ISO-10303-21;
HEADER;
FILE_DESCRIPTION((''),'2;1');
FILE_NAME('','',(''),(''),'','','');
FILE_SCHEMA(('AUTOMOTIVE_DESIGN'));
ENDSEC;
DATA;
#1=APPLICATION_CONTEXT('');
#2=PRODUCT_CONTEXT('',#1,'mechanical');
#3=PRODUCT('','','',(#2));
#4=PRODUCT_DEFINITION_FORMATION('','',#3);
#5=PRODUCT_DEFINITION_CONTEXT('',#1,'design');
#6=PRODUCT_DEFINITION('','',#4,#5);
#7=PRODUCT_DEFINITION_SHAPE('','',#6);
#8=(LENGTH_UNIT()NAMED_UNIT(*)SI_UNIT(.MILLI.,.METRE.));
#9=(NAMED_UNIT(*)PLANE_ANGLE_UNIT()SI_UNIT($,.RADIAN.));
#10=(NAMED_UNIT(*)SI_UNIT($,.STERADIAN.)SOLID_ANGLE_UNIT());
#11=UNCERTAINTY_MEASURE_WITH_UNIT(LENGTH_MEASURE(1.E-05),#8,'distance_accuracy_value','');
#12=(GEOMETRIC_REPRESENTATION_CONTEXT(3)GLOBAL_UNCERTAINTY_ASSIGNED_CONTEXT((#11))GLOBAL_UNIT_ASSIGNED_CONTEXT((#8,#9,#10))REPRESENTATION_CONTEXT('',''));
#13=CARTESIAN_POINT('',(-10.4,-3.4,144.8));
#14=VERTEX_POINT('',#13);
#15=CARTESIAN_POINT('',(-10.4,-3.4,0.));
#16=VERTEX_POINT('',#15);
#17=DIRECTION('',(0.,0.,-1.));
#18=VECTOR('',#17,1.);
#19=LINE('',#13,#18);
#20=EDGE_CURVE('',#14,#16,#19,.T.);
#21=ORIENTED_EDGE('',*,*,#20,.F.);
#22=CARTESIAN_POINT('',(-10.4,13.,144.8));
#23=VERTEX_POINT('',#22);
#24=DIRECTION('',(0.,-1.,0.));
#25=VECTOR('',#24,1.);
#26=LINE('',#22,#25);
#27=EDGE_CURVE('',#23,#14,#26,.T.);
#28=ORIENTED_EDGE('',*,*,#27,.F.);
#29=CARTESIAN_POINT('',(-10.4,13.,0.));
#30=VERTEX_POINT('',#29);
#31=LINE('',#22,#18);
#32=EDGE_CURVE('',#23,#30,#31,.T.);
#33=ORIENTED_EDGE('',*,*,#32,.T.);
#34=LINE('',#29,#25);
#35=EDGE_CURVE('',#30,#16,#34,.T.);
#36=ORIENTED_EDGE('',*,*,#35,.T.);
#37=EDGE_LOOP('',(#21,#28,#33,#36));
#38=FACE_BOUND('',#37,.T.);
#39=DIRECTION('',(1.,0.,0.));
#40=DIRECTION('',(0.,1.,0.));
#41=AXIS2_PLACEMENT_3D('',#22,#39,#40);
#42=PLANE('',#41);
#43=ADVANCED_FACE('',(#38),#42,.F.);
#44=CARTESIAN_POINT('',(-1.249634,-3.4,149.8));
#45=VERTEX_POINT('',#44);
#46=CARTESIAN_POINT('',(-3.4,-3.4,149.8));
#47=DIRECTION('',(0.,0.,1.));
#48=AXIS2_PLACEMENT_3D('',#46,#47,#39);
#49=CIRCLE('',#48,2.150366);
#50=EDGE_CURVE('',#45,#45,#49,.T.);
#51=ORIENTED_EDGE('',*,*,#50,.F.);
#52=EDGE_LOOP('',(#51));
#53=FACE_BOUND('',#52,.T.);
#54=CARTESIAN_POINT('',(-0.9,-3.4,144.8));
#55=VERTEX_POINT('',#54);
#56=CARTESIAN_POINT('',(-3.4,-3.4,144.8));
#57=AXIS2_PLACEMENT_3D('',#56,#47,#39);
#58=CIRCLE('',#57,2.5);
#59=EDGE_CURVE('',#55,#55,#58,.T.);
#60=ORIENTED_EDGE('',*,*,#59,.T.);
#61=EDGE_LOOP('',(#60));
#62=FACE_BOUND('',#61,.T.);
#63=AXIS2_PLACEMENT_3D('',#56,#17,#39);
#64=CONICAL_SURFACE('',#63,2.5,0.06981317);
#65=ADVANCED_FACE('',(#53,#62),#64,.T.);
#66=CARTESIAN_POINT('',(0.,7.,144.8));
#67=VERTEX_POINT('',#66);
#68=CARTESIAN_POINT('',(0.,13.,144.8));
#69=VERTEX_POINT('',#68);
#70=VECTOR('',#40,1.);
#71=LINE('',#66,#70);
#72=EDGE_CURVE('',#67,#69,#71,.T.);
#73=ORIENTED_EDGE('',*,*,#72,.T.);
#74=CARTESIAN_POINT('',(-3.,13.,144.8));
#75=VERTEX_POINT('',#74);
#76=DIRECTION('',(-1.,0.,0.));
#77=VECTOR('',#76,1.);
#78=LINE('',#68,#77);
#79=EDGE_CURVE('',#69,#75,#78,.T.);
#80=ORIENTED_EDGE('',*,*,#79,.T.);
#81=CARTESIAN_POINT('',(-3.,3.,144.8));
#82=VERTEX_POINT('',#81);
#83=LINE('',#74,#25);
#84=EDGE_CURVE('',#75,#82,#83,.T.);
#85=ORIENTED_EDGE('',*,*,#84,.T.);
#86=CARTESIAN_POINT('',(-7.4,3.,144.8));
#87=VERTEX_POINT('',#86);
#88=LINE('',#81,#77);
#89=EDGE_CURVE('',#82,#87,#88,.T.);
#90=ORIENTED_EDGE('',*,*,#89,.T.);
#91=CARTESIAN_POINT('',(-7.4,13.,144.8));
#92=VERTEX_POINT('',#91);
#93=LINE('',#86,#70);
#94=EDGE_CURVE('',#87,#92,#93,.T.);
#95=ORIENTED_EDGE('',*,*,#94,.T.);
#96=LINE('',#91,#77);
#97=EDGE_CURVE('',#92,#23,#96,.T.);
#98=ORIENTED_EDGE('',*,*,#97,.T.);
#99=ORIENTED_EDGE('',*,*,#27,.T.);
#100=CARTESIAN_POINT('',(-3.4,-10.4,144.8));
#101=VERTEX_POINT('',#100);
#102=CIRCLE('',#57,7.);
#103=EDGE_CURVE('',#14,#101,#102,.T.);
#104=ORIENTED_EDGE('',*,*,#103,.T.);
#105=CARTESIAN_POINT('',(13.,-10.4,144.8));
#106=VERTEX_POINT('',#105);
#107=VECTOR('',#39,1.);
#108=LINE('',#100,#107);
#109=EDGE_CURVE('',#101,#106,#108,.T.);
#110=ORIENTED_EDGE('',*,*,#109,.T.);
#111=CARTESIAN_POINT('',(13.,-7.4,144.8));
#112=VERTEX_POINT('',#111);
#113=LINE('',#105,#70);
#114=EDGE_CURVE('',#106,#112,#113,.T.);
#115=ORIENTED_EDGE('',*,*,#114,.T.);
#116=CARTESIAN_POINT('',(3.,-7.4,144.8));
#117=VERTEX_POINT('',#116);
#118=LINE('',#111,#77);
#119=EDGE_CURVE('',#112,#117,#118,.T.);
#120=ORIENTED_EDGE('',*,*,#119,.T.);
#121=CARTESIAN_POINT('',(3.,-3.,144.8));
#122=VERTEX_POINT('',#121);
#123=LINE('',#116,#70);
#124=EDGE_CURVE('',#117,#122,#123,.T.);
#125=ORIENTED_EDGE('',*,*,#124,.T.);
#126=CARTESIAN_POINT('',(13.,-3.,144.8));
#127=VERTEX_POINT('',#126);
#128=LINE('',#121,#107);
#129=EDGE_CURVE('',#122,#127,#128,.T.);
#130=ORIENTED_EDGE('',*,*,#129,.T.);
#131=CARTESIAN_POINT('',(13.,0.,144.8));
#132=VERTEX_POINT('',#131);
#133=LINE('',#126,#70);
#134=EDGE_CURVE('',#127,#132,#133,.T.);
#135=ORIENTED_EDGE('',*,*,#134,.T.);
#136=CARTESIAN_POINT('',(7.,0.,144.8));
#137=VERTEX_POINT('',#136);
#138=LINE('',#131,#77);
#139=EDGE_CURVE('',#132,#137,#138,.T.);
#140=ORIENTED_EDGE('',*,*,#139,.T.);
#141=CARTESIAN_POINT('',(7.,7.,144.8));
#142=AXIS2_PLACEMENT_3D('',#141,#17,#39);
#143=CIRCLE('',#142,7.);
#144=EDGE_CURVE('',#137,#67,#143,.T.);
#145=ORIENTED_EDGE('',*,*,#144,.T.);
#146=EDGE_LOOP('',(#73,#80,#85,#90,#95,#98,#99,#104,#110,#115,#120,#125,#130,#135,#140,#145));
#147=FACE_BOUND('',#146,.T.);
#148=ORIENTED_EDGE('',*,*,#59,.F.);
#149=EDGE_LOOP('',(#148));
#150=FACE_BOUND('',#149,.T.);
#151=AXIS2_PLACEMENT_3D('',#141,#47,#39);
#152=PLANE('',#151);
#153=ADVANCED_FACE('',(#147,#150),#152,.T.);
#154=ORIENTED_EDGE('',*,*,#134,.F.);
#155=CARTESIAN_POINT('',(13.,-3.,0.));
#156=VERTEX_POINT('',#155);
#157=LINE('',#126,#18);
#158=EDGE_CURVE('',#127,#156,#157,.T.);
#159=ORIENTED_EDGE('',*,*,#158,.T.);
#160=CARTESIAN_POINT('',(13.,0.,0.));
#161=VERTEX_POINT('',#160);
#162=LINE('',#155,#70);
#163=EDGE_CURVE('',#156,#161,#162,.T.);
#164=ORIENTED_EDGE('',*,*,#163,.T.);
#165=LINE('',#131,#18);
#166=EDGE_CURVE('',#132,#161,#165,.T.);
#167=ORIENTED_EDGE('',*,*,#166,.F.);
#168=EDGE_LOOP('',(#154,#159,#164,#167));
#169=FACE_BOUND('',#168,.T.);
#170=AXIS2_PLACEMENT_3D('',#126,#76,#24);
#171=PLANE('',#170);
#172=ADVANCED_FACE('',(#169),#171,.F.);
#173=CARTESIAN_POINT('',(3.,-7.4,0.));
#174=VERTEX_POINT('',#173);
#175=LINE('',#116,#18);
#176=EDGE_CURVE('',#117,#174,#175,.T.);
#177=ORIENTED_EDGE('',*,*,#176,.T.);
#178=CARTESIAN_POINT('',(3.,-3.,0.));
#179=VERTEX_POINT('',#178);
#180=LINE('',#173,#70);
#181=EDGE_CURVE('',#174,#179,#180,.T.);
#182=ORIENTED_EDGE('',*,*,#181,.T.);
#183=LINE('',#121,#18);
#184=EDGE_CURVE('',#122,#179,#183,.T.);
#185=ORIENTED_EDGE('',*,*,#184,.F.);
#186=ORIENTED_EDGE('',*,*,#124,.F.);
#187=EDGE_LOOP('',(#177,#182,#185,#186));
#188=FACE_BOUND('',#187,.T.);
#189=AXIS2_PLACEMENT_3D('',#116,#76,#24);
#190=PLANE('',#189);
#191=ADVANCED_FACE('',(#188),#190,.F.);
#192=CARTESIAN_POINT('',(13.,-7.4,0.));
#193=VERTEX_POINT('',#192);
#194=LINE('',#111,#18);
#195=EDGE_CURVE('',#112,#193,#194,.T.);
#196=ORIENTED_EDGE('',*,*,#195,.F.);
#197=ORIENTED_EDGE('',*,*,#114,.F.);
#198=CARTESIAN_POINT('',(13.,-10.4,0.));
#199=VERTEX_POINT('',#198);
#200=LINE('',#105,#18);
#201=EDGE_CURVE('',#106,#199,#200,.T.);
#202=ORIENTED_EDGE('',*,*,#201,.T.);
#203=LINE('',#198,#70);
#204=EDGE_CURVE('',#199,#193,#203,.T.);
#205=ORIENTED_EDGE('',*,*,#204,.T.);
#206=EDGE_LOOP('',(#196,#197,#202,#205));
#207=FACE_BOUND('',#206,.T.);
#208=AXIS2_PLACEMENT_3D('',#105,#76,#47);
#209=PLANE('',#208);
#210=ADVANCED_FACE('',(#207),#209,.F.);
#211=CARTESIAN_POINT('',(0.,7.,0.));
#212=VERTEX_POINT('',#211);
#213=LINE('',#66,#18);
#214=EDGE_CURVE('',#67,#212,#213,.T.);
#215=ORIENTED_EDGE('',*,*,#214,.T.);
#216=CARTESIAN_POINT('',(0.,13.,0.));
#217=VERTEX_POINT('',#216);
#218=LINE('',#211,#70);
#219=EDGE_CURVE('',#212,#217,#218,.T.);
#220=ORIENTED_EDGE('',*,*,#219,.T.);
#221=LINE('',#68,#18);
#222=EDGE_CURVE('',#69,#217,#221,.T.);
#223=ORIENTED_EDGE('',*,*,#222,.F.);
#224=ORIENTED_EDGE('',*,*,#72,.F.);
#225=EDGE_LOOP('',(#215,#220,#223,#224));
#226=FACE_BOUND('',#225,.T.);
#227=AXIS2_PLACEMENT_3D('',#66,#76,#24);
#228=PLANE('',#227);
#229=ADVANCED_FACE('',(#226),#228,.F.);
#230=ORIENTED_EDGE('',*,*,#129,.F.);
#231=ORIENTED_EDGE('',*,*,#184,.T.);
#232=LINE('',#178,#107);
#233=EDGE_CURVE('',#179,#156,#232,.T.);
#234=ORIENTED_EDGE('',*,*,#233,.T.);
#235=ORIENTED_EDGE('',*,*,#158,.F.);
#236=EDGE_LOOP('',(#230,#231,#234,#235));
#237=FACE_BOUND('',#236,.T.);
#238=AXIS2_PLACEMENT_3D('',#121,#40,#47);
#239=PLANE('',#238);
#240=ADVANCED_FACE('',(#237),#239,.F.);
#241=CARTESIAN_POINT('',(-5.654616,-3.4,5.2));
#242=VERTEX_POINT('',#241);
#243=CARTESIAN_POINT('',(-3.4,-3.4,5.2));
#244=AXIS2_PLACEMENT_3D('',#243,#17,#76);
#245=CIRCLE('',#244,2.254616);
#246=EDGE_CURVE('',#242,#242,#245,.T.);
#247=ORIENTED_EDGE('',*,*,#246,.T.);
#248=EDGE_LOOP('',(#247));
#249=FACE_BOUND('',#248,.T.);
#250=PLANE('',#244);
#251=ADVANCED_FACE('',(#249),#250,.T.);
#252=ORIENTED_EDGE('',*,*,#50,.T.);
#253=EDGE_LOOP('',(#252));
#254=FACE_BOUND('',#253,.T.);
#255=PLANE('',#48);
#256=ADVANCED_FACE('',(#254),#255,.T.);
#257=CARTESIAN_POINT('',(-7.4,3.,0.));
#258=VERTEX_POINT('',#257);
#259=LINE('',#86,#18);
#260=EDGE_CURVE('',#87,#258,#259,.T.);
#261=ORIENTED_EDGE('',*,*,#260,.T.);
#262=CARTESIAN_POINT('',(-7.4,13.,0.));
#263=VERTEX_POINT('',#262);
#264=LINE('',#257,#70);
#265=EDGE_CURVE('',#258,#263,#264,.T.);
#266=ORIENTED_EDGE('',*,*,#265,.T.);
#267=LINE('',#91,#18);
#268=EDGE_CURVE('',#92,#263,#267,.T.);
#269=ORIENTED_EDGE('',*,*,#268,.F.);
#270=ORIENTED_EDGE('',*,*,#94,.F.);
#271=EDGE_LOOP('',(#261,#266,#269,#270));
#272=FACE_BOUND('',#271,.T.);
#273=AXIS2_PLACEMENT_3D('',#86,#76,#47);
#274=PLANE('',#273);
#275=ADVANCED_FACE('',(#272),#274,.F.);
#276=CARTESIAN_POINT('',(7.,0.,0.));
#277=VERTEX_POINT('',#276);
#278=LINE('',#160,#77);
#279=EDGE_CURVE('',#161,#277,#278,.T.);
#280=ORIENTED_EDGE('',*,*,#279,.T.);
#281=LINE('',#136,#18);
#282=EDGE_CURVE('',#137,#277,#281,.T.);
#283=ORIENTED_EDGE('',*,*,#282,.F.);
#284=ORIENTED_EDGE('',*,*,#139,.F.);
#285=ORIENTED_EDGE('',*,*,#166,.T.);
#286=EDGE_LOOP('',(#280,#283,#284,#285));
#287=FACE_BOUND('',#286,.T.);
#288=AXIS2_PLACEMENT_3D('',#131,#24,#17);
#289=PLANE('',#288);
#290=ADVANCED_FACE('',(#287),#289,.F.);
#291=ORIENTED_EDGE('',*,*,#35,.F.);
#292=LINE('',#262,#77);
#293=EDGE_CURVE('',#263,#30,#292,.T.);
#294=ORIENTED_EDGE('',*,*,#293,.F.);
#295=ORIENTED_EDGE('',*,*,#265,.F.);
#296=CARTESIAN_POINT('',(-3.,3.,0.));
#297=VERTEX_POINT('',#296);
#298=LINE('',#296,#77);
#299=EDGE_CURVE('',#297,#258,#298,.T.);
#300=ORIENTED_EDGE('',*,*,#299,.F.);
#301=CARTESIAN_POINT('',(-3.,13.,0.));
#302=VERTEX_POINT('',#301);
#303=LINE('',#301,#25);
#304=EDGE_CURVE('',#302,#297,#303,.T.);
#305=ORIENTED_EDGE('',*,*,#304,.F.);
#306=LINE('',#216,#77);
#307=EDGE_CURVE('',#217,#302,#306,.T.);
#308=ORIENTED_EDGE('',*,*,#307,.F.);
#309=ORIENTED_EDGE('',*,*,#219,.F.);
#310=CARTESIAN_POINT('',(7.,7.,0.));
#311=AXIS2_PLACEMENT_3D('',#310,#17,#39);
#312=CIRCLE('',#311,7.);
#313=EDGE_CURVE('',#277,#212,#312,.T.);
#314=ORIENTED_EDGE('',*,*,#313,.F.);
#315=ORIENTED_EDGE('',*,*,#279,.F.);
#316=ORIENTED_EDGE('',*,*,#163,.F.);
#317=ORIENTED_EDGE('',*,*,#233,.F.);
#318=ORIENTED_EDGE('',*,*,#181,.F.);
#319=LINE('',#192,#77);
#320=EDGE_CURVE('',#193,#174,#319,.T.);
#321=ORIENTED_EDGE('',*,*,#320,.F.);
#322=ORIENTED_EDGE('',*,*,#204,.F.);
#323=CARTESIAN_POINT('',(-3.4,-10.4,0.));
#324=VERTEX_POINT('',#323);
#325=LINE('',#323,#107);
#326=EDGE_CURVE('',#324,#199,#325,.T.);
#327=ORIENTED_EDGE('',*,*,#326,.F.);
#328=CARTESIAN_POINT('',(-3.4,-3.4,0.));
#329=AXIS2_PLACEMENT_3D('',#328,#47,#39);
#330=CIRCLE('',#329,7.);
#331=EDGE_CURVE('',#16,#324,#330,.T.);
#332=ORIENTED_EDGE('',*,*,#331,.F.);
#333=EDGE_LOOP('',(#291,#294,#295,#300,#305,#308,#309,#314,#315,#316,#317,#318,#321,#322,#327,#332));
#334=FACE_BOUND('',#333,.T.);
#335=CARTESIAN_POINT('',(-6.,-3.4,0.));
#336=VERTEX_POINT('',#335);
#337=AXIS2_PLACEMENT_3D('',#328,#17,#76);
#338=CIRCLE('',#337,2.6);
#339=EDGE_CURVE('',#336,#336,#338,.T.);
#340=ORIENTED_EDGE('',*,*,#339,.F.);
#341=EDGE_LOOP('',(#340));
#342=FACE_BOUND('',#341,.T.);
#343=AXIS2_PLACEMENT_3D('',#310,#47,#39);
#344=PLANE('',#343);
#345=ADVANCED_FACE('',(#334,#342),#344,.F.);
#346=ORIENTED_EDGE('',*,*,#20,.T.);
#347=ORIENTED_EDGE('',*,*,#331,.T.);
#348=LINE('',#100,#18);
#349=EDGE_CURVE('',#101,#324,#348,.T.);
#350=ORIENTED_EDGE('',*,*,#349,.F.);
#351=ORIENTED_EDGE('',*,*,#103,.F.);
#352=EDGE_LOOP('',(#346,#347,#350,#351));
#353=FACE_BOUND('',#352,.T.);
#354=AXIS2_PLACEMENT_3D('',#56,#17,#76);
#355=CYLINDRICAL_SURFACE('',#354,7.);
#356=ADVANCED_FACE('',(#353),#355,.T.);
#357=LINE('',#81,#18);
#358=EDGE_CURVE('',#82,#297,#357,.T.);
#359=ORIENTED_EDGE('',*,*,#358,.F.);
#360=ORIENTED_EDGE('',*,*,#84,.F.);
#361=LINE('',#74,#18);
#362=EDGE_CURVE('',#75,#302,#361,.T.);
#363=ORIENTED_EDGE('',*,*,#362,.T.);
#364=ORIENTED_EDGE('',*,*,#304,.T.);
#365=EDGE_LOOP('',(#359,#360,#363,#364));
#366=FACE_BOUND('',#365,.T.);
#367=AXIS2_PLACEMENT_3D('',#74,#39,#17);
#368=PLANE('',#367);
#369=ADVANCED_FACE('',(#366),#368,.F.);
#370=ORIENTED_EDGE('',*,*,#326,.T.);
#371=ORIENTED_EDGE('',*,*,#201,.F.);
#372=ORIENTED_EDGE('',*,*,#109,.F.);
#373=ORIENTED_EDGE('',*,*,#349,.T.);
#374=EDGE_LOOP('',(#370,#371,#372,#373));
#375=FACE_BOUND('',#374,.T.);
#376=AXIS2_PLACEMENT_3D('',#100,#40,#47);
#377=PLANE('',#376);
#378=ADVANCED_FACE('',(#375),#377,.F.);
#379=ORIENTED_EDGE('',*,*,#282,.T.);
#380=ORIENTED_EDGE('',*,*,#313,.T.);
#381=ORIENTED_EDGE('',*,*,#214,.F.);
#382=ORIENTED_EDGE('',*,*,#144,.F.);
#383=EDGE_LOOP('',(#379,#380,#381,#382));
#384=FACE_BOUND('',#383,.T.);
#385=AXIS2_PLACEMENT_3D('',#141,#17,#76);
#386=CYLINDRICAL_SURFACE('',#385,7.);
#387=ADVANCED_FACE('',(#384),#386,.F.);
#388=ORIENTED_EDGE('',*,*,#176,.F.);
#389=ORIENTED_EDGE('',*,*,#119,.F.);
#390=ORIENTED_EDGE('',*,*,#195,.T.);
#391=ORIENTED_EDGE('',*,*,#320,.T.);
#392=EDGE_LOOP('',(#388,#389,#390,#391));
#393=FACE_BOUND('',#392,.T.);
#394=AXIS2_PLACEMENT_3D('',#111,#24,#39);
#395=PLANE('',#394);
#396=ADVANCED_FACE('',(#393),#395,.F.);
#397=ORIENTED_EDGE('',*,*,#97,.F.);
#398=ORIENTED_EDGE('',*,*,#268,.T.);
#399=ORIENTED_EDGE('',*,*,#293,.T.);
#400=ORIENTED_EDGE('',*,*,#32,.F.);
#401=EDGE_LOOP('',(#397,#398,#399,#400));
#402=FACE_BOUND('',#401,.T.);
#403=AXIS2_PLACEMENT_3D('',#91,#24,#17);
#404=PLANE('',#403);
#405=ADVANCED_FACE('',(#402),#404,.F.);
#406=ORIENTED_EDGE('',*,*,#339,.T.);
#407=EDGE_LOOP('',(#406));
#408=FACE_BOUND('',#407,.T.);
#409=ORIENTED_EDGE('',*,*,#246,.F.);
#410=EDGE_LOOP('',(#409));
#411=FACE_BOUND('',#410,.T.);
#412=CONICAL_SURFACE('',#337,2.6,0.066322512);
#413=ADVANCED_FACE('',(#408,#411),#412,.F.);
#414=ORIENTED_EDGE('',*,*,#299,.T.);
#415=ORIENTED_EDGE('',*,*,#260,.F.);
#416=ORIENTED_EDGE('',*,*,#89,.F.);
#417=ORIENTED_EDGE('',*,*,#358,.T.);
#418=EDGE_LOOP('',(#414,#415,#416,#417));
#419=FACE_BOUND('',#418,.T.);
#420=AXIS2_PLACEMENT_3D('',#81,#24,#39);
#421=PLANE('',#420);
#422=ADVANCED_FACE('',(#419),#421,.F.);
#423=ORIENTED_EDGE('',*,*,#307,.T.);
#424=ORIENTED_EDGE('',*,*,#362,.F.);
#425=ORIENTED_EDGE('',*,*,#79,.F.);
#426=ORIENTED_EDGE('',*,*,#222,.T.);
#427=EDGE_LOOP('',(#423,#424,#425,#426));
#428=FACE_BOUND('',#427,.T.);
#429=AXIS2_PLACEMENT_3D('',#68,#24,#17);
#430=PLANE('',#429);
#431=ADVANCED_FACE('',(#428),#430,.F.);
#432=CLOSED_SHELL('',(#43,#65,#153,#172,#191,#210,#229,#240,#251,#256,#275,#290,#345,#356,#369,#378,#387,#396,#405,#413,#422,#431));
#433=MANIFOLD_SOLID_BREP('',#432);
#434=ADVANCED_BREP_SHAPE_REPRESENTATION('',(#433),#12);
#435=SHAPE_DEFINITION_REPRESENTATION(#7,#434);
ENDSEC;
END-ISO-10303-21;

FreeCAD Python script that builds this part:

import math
import FreeCAD as App
import Part
import Sketcher
Q = App.Units.Quantity


def faces_at(feature, points):
    """Names of the faces that lie closest to the given points."""
    faces = feature.Shape.Faces
    near = lambda p: min(range(len(faces)), key=lambda i: faces[i].distToShape(Part.Vertex(*p))[0])
    return sorted({f"Face{near(p) + 1}" for p in points})

doc = App.newDocument("Part")
body = doc.addObject("PartDesign::Body", "Body")

# Sketch on XY plane
sketch1 = doc.addObject("Sketcher::SketchObject", "Sketch")
body.addObject(sketch1)
sketch1.AttachmentSupport = (doc.XY_Plane, [""])
sketch1.MapMode = "FlatFace"
sketch1.addGeometry([
    Part.LineSegment(App.Vector(-3.4, -10.4, 0), App.Vector(13, -10.4, 0)),  # 0
    Part.LineSegment(App.Vector(13, -10.4, 0), App.Vector(13, -7.4, 0)),  # 1
    Part.LineSegment(App.Vector(13, -7.4, 0), App.Vector(3, -7.4, 0)),  # 2
    Part.LineSegment(App.Vector(3, -7.4, 0), App.Vector(3, -3, 0)),  # 3
    Part.LineSegment(App.Vector(3, -3, 0), App.Vector(13, -3, 0)),  # 4
    Part.LineSegment(App.Vector(13, -3, 0), App.Vector(13, 0, 0)),  # 5
    Part.LineSegment(App.Vector(13, 0, 0), App.Vector(7, 0, 0)),  # 6
    Part.ArcOfCircle(Part.Circle(App.Vector(7, 7, 0), App.Vector(0, 0, 1), 7), math.radians(-180), math.radians(-90)),  # 7
    Part.LineSegment(App.Vector(0, 7, 0), App.Vector(0, 13, 0)),  # 8
    Part.LineSegment(App.Vector(0, 13, 0), App.Vector(-3, 13, 0)),  # 9
    Part.LineSegment(App.Vector(-3, 13, 0), App.Vector(-3, 3, 0)),  # 10
    Part.LineSegment(App.Vector(-3, 3, 0), App.Vector(-7.4, 3, 0)),  # 11
    Part.LineSegment(App.Vector(-7.4, 3, 0), App.Vector(-7.4, 13, 0)),  # 12
    Part.LineSegment(App.Vector(-7.4, 13, 0), App.Vector(-10.4, 13, 0)),  # 13
    Part.LineSegment(App.Vector(-10.4, 13, 0), App.Vector(-10.4, -3.4, 0)),  # 14
    Part.ArcOfCircle(Part.Circle(App.Vector(-3.4, -3.4, 0), App.Vector(0, 0, 1), 7), math.radians(-180), math.radians(-90)),  # 15
], False)
sketch1.addConstraint([
    Sketcher.Constraint("Coincident", 0, 2, 1, 1),
    Sketcher.Constraint("Coincident", 1, 2, 2, 1),
    Sketcher.Constraint("Coincident", 2, 2, 3, 1),
    Sketcher.Constraint("Coincident", 3, 2, 4, 1),
    Sketcher.Constraint("Coincident", 4, 2, 5, 1),
    Sketcher.Constraint("Coincident", 5, 2, 6, 1),
    Sketcher.Constraint("Tangent", 6, 2, 7, 2),
    Sketcher.Constraint("Tangent", 7, 1, 8, 1),
    Sketcher.Constraint("Coincident", 8, 2, 9, 1),
    Sketcher.Constraint("Coincident", 9, 2, 10, 1),
    Sketcher.Constraint("Coincident", 10, 2, 11, 1),
    Sketcher.Constraint("Coincident", 11, 2, 12, 1),
    Sketcher.Constraint("Coincident", 12, 2, 13, 1),
    Sketcher.Constraint("Coincident", 13, 2, 14, 1),
    Sketcher.Constraint("Tangent", 14, 2, 15, 1),
    Sketcher.Constraint("Tangent", 15, 2, 0, 1),
    Sketcher.Constraint("Horizontal", 0),
    Sketcher.Constraint("Vertical", 1),
    Sketcher.Constraint("Horizontal", 2),
    Sketcher.Constraint("Vertical", 3),
    Sketcher.Constraint("Horizontal", 4),
    Sketcher.Constraint("Vertical", 5),
    Sketcher.Constraint("Horizontal", 6),
    Sketcher.Constraint("Vertical", 8),
    Sketcher.Constraint("Horizontal", 9),
    Sketcher.Constraint("Vertical", 10),
    Sketcher.Constraint("Horizontal", 11),
    Sketcher.Constraint("Vertical", 12),
    Sketcher.Constraint("Horizontal", 13),
    Sketcher.Constraint("Vertical", 14),
    Sketcher.Constraint("Equal", 7, 15),
    Sketcher.Constraint("Symmetric", 3, 2, 10, 2, -1, 1),
    Sketcher.Constraint("PointOnObject", 5, 2, -1),
    Sketcher.Constraint("PointOnObject", 7, 1, -2),
    Sketcher.Constraint("Horizontal", 9, 2, 12, 2),
    Sketcher.Constraint("Vertical", 1, 2, 4, 2),
    Sketcher.Constraint("Equal", 9, 13),
    Sketcher.Constraint("Equal", 13, 1),
    Sketcher.Constraint("Equal", 11, 3),
    Sketcher.Constraint("Equal", 1, 5),
    Sketcher.Constraint("Equal", 6, 8),
    Sketcher.Constraint("Radius", 7, Q("7 mm")),
    Sketcher.Constraint("DistanceX", 2, 2, 2, 1, Q("10 mm")),
    Sketcher.Constraint("DistanceX", 6, 2, 6, 1, Q("6 mm")),
    Sketcher.Constraint("DistanceX", 0, 1, 0, 2, Q("16.4 mm")),
])
pad1 = doc.addObject("PartDesign::Pad", "Pad")
body.addObject(pad1)
pad1.Profile = sketch1
pad1.Length = 144.8

# Sketch on XY plane
sketch2 = doc.addObject("Sketcher::SketchObject", "Sketch001")
body.addObject(sketch2)
sketch2.AttachmentSupport = (doc.XY_Plane, [""])
sketch2.MapMode = "FlatFace"
sketch2.AttachmentOffset = App.Placement(App.Vector(0, 0, 144.8), App.Rotation())
sketch2.addGeometry(Part.Circle(App.Vector(-3.4, -3.4, 0), App.Vector(0, 0, 1), 2.5), False)
sketch2.addConstraint([
    Sketcher.Constraint("Diameter", 0, Q("5 mm")),
    Sketcher.Constraint("DistanceX", 0, 3, -1, 1, Q("3.4 mm")),
    Sketcher.Constraint("DistanceY", 0, 3, -1, 1, Q("3.4 mm")),
])
pad2 = doc.addObject("PartDesign::Pad", "Pad001")
body.addObject(pad2)
pad2.Profile = sketch2
pad2.Length = 5
pad2.TaperAngle = -4
body2 = doc.addObject("PartDesign::Body", "Body001")

# Sketch on XY plane
sketch3 = doc.addObject("Sketcher::SketchObject", "Sketch002")
body2.addObject(sketch3)
sketch3.AttachmentSupport = (doc.getObject("XY_Plane001"), [""])
sketch3.MapMode = "FlatFace"
sketch3.addGeometry(Part.Circle(App.Vector(-3.4, -3.4, 0), App.Vector(0, 0, 1), 2.6), False)
sketch3.addConstraint([
    Sketcher.Constraint("Diameter", 0, Q("5.2 mm")),
    Sketcher.Constraint("DistanceX", 0, 3, -1, 1, Q("3.4 mm")),
    Sketcher.Constraint("DistanceY", 0, 3, -1, 1, Q("3.4 mm")),
])
pad3 = doc.addObject("PartDesign::Pad", "Pad002")
body2.addObject(pad3)
pad3.Profile = sketch3
pad3.Length = 5.2
doc.recompute()

draft = doc.addObject("PartDesign::Draft", "Draft")
body2.addObject(draft)
draft.Base = (pad3, faces_at(pad3, [(-0.8, -3.4, 2.6)]))
draft.NeutralPlane = (doc.getObject("XY_Plane001"), [""])
draft.Angle = 3.8
draft.Reversed = False
doc.recompute()

boolean = doc.addObject("PartDesign::Boolean", "Boolean")
body.addObject(boolean)
boolean.Type = "Cut"
boolean.addObjects([body2])

doc.recompute()
